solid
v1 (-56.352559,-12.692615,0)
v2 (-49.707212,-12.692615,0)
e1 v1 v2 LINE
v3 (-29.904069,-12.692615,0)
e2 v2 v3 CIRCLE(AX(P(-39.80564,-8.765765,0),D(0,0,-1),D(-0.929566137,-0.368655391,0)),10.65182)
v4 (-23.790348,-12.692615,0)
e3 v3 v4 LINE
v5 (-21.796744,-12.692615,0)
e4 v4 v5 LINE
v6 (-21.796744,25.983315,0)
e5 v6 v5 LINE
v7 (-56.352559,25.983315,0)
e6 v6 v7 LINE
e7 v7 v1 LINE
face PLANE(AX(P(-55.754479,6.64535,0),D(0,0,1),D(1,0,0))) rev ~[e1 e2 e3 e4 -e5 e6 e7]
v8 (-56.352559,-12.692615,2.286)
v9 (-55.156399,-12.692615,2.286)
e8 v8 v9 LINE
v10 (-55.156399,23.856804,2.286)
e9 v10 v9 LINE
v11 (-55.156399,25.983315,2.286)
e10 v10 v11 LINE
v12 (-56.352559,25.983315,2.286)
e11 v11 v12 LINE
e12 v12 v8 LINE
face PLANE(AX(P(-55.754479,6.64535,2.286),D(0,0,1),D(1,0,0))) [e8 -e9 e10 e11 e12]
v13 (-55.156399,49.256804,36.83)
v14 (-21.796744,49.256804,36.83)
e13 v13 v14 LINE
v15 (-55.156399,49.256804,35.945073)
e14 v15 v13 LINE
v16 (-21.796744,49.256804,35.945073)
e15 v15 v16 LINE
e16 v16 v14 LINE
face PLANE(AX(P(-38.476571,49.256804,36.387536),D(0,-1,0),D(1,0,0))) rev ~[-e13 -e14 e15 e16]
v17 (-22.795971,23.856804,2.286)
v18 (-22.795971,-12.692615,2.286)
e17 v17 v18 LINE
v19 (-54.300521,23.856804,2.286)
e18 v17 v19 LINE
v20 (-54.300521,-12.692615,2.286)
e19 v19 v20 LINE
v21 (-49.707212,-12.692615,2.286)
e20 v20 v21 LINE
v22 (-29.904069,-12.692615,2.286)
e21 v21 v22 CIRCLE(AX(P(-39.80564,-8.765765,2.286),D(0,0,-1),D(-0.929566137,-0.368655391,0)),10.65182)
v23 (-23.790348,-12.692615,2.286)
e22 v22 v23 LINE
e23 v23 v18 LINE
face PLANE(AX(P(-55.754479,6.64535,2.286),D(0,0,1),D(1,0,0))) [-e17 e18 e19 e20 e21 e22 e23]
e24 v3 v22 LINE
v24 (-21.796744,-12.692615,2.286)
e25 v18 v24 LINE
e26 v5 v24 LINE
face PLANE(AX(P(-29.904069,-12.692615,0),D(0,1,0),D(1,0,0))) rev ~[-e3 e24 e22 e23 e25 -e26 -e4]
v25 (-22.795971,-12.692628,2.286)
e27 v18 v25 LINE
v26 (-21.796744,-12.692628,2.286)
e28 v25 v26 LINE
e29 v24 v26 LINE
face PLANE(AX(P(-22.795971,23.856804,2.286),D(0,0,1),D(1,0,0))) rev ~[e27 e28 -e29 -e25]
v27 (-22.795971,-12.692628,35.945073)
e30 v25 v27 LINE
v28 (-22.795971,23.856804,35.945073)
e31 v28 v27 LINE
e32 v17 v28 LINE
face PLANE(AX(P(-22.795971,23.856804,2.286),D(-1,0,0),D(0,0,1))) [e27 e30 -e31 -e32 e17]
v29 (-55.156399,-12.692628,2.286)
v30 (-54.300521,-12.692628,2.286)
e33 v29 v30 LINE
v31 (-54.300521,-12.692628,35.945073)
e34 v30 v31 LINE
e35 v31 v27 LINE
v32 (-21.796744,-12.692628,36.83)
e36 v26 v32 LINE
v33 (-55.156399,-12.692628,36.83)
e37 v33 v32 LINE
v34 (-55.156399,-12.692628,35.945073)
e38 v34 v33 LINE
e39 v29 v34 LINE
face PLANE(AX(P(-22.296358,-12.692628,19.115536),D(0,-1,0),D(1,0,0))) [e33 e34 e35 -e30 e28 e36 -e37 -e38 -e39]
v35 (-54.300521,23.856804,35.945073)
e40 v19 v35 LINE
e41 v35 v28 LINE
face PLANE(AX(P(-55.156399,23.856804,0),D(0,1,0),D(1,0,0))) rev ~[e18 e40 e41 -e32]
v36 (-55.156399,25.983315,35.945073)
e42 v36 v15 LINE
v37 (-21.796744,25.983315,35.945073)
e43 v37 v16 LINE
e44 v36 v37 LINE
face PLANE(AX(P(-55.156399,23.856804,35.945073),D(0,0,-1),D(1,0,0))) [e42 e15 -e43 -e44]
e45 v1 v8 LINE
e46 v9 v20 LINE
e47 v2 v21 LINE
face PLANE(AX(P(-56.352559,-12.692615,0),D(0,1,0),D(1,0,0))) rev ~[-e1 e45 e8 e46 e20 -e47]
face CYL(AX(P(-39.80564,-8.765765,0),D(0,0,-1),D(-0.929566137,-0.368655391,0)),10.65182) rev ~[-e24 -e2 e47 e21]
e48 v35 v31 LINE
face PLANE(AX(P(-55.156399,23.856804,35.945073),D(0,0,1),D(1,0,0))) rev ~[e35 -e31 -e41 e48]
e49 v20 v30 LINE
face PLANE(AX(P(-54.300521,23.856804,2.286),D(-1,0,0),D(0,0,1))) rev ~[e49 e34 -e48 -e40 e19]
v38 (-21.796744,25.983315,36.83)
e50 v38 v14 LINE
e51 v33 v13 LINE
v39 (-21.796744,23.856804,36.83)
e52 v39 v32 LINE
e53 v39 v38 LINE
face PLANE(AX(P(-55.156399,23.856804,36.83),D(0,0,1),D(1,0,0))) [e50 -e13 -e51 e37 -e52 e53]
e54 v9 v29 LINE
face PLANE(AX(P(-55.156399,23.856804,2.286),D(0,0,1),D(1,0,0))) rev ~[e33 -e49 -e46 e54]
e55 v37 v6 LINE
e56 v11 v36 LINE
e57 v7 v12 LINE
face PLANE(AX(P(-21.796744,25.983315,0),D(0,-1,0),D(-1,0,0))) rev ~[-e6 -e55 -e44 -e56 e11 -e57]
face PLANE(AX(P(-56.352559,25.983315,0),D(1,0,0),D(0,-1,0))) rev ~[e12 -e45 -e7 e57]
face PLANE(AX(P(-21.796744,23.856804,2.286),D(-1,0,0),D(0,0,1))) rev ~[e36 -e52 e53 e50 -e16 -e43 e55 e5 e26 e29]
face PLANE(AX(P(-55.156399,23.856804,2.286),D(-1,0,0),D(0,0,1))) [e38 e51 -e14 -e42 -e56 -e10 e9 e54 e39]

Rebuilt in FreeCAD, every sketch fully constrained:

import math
import FreeCAD as App
import Part
import Sketcher
from FreeCAD import Vector
Q = App.Units.Quantity


def add_polygon(sketch, points):
    """Adds a closed chain of lines whose ends are joined by coincident constraints."""
    first, n = sketch.GeometryCount, len(points)
    for a, b in zip(points, points[1:] + points[:1]):
        sketch.addGeometry(Part.LineSegment(App.Vector(*a, 0), App.Vector(*b, 0)), False)
    for i in range(n):
        sketch.addConstraint(Sketcher.Constraint("Coincident", first + i, 2, first + (i + 1) % n, 1))

doc = App.newDocument("Part")
body = doc.addObject("PartDesign::Body", "Body")

# Sketch on XY plane
sketch1 = doc.addObject("Sketcher::SketchObject", "Sketch")
body.addObject(sketch1)
sketch1.AttachmentSupport = (doc.XY_Plane, [""])
sketch1.MapMode = "FlatFace"
sketch1.addGeometry(Part.LineSegment(Vector(-56.4, 26, 0), Vector(-56.4, -12.7, 0)), False)
sketch1.addGeometry(Part.LineSegment(Vector(-56.4, -12.7, 0), Vector(-49.7, -12.7, 0)), False)
sketch1.addGeometry(Part.ArcOfCircle(Part.Circle(Vector(-39.8, -8.8, 0), Vector(0, 0, 1), 10.7), math.radians(-22), math.radians(202)), False)
sketch1.addGeometry(Part.LineSegment(Vector(-29.9, -12.7, 0), Vector(-23.8, -12.7, 0)), False)
sketch1.addGeometry(Part.LineSegment(Vector(-23.8, -12.7, 0), Vector(-21.8, -12.7, 0)), False)
sketch1.addGeometry(Part.LineSegment(Vector(-21.8, -12.7, 0), Vector(-21.8, 26, 0)), False)
sketch1.addGeometry(Part.LineSegment(Vector(-21.8, 26, 0), Vector(-56.4, 26, 0)), False)
sketch1.addConstraint(Sketcher.Constraint("Coincident", 0, 2, 1, 1))
sketch1.addConstraint(Sketcher.Constraint("Coincident", 1, 2, 2, 2))
sketch1.addConstraint(Sketcher.Constraint("Coincident", 2, 1, 3, 1))
sketch1.addConstraint(Sketcher.Constraint("Coincident", 3, 2, 4, 1))
sketch1.addConstraint(Sketcher.Constraint("Coincident", 4, 2, 5, 1))
sketch1.addConstraint(Sketcher.Constraint("Coincident", 5, 2, 6, 1))
sketch1.addConstraint(Sketcher.Constraint("Coincident", 6, 2, 0, 1))
sketch1.addConstraint(Sketcher.Constraint("Vertical", 0))
sketch1.addConstraint(Sketcher.Constraint("Horizontal", 1))
sketch1.addConstraint(Sketcher.Constraint("Horizontal", 3))
sketch1.addConstraint(Sketcher.Constraint("Horizontal", 4))
sketch1.addConstraint(Sketcher.Constraint("Vertical", 5))
sketch1.addConstraint(Sketcher.Constraint("Horizontal", 6))
sketch1.addConstraint(Sketcher.Constraint("Horizontal", 1, 2, 2, 1))
sketch1.addConstraint(Sketcher.Constraint("Radius", 2, Q("10.65182 mm")))
sketch1.addConstraint(Sketcher.Constraint("DistanceX", 3, 1, 3, 2, Q("6.113721 mm")))
sketch1.addConstraint(Sketcher.Constraint("DistanceY", 0, 2, 0, 1, Q("38.67593 mm")))
sketch1.addConstraint(Sketcher.Constraint("DistanceX", 1, 1, 1, 2, Q("6.645348 mm")))
sketch1.addConstraint(Sketcher.Constraint("DistanceX", 4, 1, 4, 2, Q("1.993604 mm")))
sketch1.addConstraint(Sketcher.Constraint("DistanceX", 6, 2, 6, 1, Q("34.555815 mm")))
sketch1.addConstraint(Sketcher.Constraint("DistanceX", 2, 3, -1, 1, Q("39.80564 mm")))
sketch1.addConstraint(Sketcher.Constraint("DistanceY", 2, 3, -1, 1, Q("8.765765 mm")))
pad1 = doc.addObject("PartDesign::Pad", "Pad")
body.addObject(pad1)
pad1.Profile = sketch1
pad1.Length = Q("0.09 in")

# Sketch on XY plane
sketch2 = doc.addObject("Sketcher::SketchObject", "Sketch001")
body.addObject(sketch2)
sketch2.AttachmentSupport = (doc.XY_Plane, [""])
sketch2.MapMode = "FlatFace"
add_polygon(sketch2, [(-21.8, 26), (-55.2, 26), (-55.2, 23.9), (-21.8, 23.9)])  # lines 0-3
sketch2.addConstraint(Sketcher.Constraint("Horizontal", 0))
sketch2.addConstraint(Sketcher.Constraint("Vertical", 1))
sketch2.addConstraint(Sketcher.Constraint("Horizontal", 2))
sketch2.addConstraint(Sketcher.Constraint("Vertical", 3))
sketch2.addConstraint(Sketcher.Constraint("DistanceY", 1, 2, 1, 1, Q("2.126511 mm")))
sketch2.addConstraint(Sketcher.Constraint("DistanceX", 0, 2, -1, 1, Q("55.156399 mm")))
sketch2.addConstraint(Sketcher.Constraint("DistanceX", 0, 2, 0, 1, Q("33.359654 mm")))
sketch2.addConstraint(Sketcher.Constraint("DistanceY", -1, 1, 0, 2, Q("25.983315 mm")))
pad2 = doc.addObject("PartDesign::Pad", "Pad001")
body.addObject(pad2)
pad2.Profile = sketch2
pad2.Length = Q("1.45 in")

# Sketch on XZ plane
sketch3 = doc.addObject("Sketcher::SketchObject", "Sketch002")
body.addObject(sketch3)
sketch3.AttachmentSupport = (doc.XZ_Plane, [""])
sketch3.MapMode = "FlatFace"
sketch3.AttachmentOffset = App.Placement(Vector(0, 0, -23.856804), App.Rotation())
add_polygon(sketch3, [(-55.2, 36.8), (-55.2, 35.9), (-21.8, 35.9), (-21.8, 36.8)])  # lines 0-3
sketch3.addConstraint(Sketcher.Constraint("Vertical", 0))
sketch3.addConstraint(Sketcher.Constraint("Horizontal", 1))
sketch3.addConstraint(Sketcher.Constraint("Vertical", 2))
sketch3.addConstraint(Sketcher.Constraint("Horizontal", 3))
sketch3.addConstraint(Sketcher.Constraint("DistanceY", -1, 1, 2, 2, Q("1.45 in")))
sketch3.addConstraint(Sketcher.Constraint("DistanceX", 0, 2, -1, 1, Q("55.156399 mm")))
sketch3.addConstraint(Sketcher.Constraint("DistanceX", 1, 1, 1, 2, Q("33.359654 mm")))
sketch3.addConstraint(Sketcher.Constraint("DistanceY", 0, 2, 0, 1, Q("0.884927 mm")))
pad3 = doc.addObject("PartDesign::Pad", "Pad002")
body.addObject(pad3)
pad3.Profile = sketch3
pad3.Type = "TwoLengths"
pad3.Length = 36.549432
pad3.Length2 = Q("1 in")

# Sketch on XZ plane
sketch4 = doc.addObject("Sketcher::SketchObject", "Sketch003")
body.addObject(sketch4)
sketch4.AttachmentSupport = (doc.XZ_Plane, [""])
sketch4.MapMode = "FlatFace"
sketch4.AttachmentOffset = App.Placement(Vector(0, 0, -23.856804), App.Rotation())
add_polygon(sketch4, [(-55.2, 35.9), (-55.2, 2.3), (-54.3, 2.3), (-54.3, 35.9)])  # lines 0-3
sketch4.addConstraint(Sketcher.Constraint("Vertical", 0))
sketch4.addConstraint(Sketcher.Constraint("Horizontal", 1))
sketch4.addConstraint(Sketcher.Constraint("Vertical", 2))
sketch4.addConstraint(Sketcher.Constraint("Horizontal", 3))
sketch4.addConstraint(Sketcher.Constraint("DistanceY", -1, 1, 0, 2, Q("0.09 in")))
sketch4.addConstraint(Sketcher.Constraint("DistanceX", 0, 2, -1, 1, Q("55.156399 mm")))
sketch4.addConstraint(Sketcher.Constraint("DistanceX", 1, 1, 1, 2, Q("0.855878 mm")))
sketch4.addConstraint(Sketcher.Constraint("DistanceY", 0, 2, 0, 1, Q("33.659073 mm")))
pad4 = doc.addObject("PartDesign::Pad", "Pad003")
body.addObject(pad4)
pad4.Profile = sketch4
pad4.Length = 36.549432

# Sketch on XZ plane
sketch5 = doc.addObject("Sketcher::SketchObject", "Sketch004")
body.addObject(sketch5)
sketch5.AttachmentSupport = (doc.XZ_Plane, [""])
sketch5.MapMode = "FlatFace"
sketch5.AttachmentOffset = App.Placement(Vector(0, 0, -23.856804), App.Rotation())
add_polygon(sketch5, [(-22.8, 35.9), (-22.8, 2.3), (-21.8, 2.3), (-21.8, 35.9)])  # lines 0-3
sketch5.addConstraint(Sketcher.Constraint("Vertical", 0))
sketch5.addConstraint(Sketcher.Constraint("Horizontal", 1))
sketch5.addConstraint(Sketcher.Constraint("Vertical", 2))
sketch5.addConstraint(Sketcher.Constraint("Horizontal", 3))
sketch5.addConstraint(Sketcher.Constraint("DistanceY", -1, 1, 0, 2, Q("0.09 in")))
sketch5.addConstraint(Sketcher.Constraint("DistanceX", 1, 1, 1, 2, Q("0.999227 mm")))
sketch5.addConstraint(Sketcher.Constraint("DistanceY", 0, 2, 0, 1, Q("33.659073 mm")))
sketch5.addConstraint(Sketcher.Constraint("DistanceX", 0, 2, -1, 1, Q("22.795971 mm")))
pad5 = doc.addObject("PartDesign::Pad", "Pad004")
body.addObject(pad5)
pad5.Profile = sketch5
pad5.Length = 36.549432

doc.recompute()
